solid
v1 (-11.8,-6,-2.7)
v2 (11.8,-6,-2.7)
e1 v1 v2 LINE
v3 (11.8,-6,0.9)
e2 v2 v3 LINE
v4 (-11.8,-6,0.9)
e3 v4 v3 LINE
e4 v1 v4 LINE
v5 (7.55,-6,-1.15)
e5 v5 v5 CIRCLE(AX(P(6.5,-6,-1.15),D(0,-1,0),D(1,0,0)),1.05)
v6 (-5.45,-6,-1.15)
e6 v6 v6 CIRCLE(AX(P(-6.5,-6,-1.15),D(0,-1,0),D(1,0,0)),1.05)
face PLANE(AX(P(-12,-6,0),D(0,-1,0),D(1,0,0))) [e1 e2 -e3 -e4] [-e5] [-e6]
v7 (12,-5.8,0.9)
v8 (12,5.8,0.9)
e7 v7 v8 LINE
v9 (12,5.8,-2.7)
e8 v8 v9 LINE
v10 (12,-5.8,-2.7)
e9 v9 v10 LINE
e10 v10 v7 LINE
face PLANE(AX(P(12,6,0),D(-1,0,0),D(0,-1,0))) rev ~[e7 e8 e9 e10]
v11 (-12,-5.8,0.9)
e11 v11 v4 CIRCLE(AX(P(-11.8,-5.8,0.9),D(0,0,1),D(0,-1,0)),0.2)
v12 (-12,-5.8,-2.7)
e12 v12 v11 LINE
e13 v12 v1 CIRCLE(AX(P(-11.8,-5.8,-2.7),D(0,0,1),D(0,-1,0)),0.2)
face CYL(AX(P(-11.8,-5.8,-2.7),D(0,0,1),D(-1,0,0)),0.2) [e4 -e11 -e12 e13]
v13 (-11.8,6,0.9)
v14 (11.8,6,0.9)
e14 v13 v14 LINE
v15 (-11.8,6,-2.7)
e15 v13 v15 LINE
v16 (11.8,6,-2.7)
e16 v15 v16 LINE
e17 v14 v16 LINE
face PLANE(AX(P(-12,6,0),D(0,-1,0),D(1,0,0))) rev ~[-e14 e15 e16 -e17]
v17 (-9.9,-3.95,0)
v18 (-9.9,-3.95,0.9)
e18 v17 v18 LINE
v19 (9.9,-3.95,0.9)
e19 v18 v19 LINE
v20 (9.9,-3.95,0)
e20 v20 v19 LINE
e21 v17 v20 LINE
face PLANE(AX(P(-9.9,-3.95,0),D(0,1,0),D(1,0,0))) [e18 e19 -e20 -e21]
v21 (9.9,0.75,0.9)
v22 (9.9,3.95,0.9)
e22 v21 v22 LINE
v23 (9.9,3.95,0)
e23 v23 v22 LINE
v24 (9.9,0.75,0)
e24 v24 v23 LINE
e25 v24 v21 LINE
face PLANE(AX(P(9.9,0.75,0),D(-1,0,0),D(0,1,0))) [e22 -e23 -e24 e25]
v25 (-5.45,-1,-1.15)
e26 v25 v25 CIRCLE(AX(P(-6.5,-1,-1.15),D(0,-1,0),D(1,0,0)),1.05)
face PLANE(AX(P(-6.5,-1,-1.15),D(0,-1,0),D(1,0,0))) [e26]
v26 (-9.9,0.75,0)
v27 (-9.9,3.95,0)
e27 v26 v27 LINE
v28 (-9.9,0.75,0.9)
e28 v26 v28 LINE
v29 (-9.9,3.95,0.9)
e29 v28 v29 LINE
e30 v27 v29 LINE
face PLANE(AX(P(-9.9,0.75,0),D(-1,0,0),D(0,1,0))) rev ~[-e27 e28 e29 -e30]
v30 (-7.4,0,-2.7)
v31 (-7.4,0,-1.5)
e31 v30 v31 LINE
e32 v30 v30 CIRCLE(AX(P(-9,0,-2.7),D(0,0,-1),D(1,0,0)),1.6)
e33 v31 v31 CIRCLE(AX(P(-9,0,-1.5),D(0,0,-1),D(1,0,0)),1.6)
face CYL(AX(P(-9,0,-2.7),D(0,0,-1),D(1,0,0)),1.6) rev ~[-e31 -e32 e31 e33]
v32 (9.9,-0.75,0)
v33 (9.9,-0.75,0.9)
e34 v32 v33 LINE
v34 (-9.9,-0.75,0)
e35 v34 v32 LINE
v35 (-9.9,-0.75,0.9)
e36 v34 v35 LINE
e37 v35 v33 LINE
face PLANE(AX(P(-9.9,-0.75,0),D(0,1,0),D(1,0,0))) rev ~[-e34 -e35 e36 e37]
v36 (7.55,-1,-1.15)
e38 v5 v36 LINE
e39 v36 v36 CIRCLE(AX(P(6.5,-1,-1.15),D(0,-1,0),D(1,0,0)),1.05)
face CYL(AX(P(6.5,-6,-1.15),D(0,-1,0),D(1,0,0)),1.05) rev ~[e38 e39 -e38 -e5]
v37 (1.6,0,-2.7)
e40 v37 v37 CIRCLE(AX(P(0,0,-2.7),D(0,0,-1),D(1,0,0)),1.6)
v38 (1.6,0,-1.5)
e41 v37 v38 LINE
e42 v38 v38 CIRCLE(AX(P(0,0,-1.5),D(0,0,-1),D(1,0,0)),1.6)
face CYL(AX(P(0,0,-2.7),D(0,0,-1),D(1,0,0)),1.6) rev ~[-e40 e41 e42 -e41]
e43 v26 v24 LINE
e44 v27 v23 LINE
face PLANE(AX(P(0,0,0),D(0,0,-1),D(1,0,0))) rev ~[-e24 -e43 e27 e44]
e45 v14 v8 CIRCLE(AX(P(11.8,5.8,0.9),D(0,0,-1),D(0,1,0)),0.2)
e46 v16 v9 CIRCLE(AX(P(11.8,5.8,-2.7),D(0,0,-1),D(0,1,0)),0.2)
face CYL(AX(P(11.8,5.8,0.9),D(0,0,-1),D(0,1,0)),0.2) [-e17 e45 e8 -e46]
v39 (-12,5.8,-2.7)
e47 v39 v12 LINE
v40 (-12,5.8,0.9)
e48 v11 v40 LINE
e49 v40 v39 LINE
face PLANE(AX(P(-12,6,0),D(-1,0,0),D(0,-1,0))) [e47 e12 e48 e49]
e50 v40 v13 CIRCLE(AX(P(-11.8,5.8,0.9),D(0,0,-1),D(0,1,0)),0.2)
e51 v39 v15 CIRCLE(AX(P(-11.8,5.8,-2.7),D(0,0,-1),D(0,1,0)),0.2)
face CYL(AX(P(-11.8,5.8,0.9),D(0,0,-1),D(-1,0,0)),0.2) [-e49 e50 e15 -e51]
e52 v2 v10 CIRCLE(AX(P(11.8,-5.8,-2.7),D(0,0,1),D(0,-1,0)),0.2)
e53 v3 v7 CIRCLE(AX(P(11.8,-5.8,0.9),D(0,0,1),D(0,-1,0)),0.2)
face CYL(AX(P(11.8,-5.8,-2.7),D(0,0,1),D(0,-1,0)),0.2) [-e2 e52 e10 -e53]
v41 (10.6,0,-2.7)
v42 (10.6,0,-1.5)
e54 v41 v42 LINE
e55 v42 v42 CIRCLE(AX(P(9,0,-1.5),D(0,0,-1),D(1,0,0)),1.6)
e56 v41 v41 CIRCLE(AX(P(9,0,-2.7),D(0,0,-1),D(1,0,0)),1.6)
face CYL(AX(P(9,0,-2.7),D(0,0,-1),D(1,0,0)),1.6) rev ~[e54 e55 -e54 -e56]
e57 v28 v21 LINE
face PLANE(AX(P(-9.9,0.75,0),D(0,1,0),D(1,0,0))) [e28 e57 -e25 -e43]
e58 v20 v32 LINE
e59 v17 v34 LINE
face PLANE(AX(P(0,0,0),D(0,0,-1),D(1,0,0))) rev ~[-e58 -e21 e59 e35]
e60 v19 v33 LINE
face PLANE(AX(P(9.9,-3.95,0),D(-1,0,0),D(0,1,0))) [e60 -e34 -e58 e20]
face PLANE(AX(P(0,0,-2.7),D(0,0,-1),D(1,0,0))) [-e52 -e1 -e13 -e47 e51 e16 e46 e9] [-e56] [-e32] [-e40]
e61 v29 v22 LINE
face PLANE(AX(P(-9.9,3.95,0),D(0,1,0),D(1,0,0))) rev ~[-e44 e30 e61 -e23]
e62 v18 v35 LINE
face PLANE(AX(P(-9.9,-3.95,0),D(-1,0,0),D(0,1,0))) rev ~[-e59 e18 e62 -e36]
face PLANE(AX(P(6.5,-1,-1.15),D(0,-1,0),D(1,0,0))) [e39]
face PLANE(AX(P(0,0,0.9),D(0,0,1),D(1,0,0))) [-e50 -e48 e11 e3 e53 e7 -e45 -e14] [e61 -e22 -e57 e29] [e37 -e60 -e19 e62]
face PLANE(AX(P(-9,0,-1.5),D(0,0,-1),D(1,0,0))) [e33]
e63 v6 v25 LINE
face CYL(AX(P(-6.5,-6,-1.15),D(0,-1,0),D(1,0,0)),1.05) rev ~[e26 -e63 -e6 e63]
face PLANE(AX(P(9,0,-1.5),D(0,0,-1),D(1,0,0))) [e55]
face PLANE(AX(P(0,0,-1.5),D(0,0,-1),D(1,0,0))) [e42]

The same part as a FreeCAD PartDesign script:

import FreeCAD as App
import Part
import Sketcher
Q = App.Units.Quantity


def edges_at(feature, points):
    """Names of the edges that pass closest to the given points."""
    edges = feature.Shape.Edges
    near = lambda p: min(range(len(edges)), key=lambda i: edges[i].distToShape(Part.Vertex(*p))[0])
    return sorted({f"Edge{near(p) + 1}" for p in points})


def add_polygon(sketch, points):
    """Adds a closed chain of lines whose ends are joined by coincident constraints."""
    first, n = sketch.GeometryCount, len(points)
    for a, b in zip(points, points[1:] + points[:1]):
        sketch.addGeometry(Part.LineSegment(App.Vector(*a, 0), App.Vector(*b, 0)), False)
    for i in range(n):
        sketch.addConstraint(Sketcher.Constraint("Coincident", first + i, 2, first + (i + 1) % n, 1))

doc = App.newDocument("Part")
body = doc.addObject("PartDesign::Body", "Body")

sketch1 = body.newObject("Sketcher::SketchObject", "Sketch")
sketch1.AttachmentSupport = (doc.getObject("XY_Plane"), [""])
sketch1.MapMode = "FlatFace"
add_polygon(sketch1, [(-12, 6), (-12, -6), (12, -6), (12, 6)])
add_polygon(sketch1, [(9.9, -4), (-9.9, -4), (-9.9, -0.8), (9.9, -0.8)])
add_polygon(sketch1, [(9.9, 0.8), (-9.9, 0.8), (-9.9, 4), (9.9, 4)])
sketch1.addConstraint([
    Sketcher.Constraint("Vertical", 0),
    Sketcher.Constraint("Horizontal", 1),
    Sketcher.Constraint("Vertical", 2),
    Sketcher.Constraint("Horizontal", 3),
    Sketcher.Constraint("Horizontal", 4),
    Sketcher.Constraint("Vertical", 5),
    Sketcher.Constraint("Horizontal", 6),
    Sketcher.Constraint("Vertical", 7),
    Sketcher.Constraint("Horizontal", 8),
    Sketcher.Constraint("Vertical", 9),
    Sketcher.Constraint("Horizontal", 10),
    Sketcher.Constraint("Vertical", 11),
    Sketcher.Constraint("Symmetric", 0, 2, 2, 2, -1, 1),
    Sketcher.Constraint("Symmetric", 6, 2, 8, 2, -1, 1),
    Sketcher.Constraint("Symmetric", 4, 2, 10, 2, -1, 1),
    Sketcher.Constraint("Vertical", 5, 2, 8, 2),
    Sketcher.Constraint("DistanceX", 1, 1, 1, 2, Q("24 mm")),
    Sketcher.Constraint("DistanceY", 0, 2, 0, 1, Q("12 mm")),
    Sketcher.Constraint("DistanceX", 4, 2, 4, 1, Q("19.8 mm")),
    Sketcher.Constraint("DistanceY", 5, 1, 5, 2, Q("3.2 mm")),
    Sketcher.Constraint("DistanceY", 5, 2, 8, 2, Q("1.5 mm")),
])
pad1 = body.newObject("PartDesign::Pad", "Pad")
pad1.Profile = sketch1
pad1.Length = 0.9

sketch2 = body.newObject("Sketcher::SketchObject", "Sketch001")
sketch2.AttachmentSupport = (doc.getObject("XY_Plane"), [""])
sketch2.MapMode = "FlatFace"
add_polygon(sketch2, [(-12, -6), (-12, 6), (12, 6), (12, -6)])
sketch2.addConstraint([
    Sketcher.Constraint("Vertical", 0),
    Sketcher.Constraint("Horizontal", 1),
    Sketcher.Constraint("Vertical", 2),
    Sketcher.Constraint("Horizontal", 3),
    Sketcher.Constraint("Symmetric", 0, 2, 2, 2, -1, 1),
    Sketcher.Constraint("DistanceX", 1, 1, 1, 2, Q("24 mm")),
    Sketcher.Constraint("DistanceY", 0, 1, 0, 2, Q("12 mm")),
])
pad2 = body.newObject("PartDesign::Pad", "Pad001")
pad2.Profile = sketch2
pad2.Length = 2.7
pad2.Reversed = True

sketch3 = body.newObject("Sketcher::SketchObject", "Sketch002")
sketch3.AttachmentSupport = (doc.getObject("XY_Plane"), [""])
sketch3.MapMode = "FlatFace"
sketch3.AttachmentOffset = App.Placement(App.Vector(0, 0, -2.7), App.Rotation())
sketch3.addGeometry([
    Part.Circle(App.Vector(0, 0, 0), App.Vector(0, 0, 1), 1.6),
    Part.Circle(App.Vector(-9, 0, 0), App.Vector(0, 0, 1), 1.6),
    Part.Circle(App.Vector(9, 0, 0), App.Vector(0, 0, 1), 1.6),
], False)
sketch3.addConstraint([
    Sketcher.Constraint("Coincident", 0, 3, -1, 1),
    Sketcher.Constraint("Equal", 0, 1),
    Sketcher.Constraint("Equal", 1, 2),
    Sketcher.Constraint("Symmetric", 1, 3, 2, 3, -1, 1),
    Sketcher.Constraint("PointOnObject", 1, 3, -1),
    Sketcher.Constraint("Diameter", 0, Q("3.2 mm")),
    Sketcher.Constraint("DistanceX", 1, 3, -1, 1, Q("9 mm")),
])
pocket1 = body.newObject("PartDesign::Pocket", "Pocket")
pocket1.Profile = sketch3
pocket1.Length = 1.2
pocket1.Reversed = True
doc.recompute()

fillet = body.newObject("PartDesign::Fillet", "Fillet")
fillet.Base = (pocket1, edges_at(pocket1, [
    (-12, -6, -0.9),
    (-12, 6, -0.9),
    (12, 6, -0.9),
    (12, -6, -0.9),
]))
fillet.Radius = 0.2

sketch4 = body.newObject("Sketcher::SketchObject", "Sketch003")
sketch4.AttachmentSupport = (doc.getObject("XZ_Plane"), [""])
sketch4.MapMode = "FlatFace"
sketch4.AttachmentOffset = App.Placement(App.Vector(0, 0, 6), App.Rotation())
sketch4.addGeometry([
    Part.Circle(App.Vector(-6.5, -1.1, 0), App.Vector(0, 0, 1), 1.1),
    Part.Circle(App.Vector(6.5, -1.1, 0), App.Vector(0, 0, 1), 1.1),
], False)
sketch4.addConstraint([
    Sketcher.Constraint("Equal", 0, 1),
    Sketcher.Constraint("Symmetric", 0, 3, 1, 3, -2),
    Sketcher.Constraint("Diameter", 0, Q("2.1 mm")),
    Sketcher.Constraint("DistanceX", 0, 3, 1, 3, Q("13 mm")),
    Sketcher.Constraint("DistanceY", 0, 3, -1, 1, Q("1.15 mm")),
])
pocket2 = body.newObject("PartDesign::Pocket", "Pocket001")
pocket2.Profile = sketch4
pocket2.Length = 5

doc.recompute()
